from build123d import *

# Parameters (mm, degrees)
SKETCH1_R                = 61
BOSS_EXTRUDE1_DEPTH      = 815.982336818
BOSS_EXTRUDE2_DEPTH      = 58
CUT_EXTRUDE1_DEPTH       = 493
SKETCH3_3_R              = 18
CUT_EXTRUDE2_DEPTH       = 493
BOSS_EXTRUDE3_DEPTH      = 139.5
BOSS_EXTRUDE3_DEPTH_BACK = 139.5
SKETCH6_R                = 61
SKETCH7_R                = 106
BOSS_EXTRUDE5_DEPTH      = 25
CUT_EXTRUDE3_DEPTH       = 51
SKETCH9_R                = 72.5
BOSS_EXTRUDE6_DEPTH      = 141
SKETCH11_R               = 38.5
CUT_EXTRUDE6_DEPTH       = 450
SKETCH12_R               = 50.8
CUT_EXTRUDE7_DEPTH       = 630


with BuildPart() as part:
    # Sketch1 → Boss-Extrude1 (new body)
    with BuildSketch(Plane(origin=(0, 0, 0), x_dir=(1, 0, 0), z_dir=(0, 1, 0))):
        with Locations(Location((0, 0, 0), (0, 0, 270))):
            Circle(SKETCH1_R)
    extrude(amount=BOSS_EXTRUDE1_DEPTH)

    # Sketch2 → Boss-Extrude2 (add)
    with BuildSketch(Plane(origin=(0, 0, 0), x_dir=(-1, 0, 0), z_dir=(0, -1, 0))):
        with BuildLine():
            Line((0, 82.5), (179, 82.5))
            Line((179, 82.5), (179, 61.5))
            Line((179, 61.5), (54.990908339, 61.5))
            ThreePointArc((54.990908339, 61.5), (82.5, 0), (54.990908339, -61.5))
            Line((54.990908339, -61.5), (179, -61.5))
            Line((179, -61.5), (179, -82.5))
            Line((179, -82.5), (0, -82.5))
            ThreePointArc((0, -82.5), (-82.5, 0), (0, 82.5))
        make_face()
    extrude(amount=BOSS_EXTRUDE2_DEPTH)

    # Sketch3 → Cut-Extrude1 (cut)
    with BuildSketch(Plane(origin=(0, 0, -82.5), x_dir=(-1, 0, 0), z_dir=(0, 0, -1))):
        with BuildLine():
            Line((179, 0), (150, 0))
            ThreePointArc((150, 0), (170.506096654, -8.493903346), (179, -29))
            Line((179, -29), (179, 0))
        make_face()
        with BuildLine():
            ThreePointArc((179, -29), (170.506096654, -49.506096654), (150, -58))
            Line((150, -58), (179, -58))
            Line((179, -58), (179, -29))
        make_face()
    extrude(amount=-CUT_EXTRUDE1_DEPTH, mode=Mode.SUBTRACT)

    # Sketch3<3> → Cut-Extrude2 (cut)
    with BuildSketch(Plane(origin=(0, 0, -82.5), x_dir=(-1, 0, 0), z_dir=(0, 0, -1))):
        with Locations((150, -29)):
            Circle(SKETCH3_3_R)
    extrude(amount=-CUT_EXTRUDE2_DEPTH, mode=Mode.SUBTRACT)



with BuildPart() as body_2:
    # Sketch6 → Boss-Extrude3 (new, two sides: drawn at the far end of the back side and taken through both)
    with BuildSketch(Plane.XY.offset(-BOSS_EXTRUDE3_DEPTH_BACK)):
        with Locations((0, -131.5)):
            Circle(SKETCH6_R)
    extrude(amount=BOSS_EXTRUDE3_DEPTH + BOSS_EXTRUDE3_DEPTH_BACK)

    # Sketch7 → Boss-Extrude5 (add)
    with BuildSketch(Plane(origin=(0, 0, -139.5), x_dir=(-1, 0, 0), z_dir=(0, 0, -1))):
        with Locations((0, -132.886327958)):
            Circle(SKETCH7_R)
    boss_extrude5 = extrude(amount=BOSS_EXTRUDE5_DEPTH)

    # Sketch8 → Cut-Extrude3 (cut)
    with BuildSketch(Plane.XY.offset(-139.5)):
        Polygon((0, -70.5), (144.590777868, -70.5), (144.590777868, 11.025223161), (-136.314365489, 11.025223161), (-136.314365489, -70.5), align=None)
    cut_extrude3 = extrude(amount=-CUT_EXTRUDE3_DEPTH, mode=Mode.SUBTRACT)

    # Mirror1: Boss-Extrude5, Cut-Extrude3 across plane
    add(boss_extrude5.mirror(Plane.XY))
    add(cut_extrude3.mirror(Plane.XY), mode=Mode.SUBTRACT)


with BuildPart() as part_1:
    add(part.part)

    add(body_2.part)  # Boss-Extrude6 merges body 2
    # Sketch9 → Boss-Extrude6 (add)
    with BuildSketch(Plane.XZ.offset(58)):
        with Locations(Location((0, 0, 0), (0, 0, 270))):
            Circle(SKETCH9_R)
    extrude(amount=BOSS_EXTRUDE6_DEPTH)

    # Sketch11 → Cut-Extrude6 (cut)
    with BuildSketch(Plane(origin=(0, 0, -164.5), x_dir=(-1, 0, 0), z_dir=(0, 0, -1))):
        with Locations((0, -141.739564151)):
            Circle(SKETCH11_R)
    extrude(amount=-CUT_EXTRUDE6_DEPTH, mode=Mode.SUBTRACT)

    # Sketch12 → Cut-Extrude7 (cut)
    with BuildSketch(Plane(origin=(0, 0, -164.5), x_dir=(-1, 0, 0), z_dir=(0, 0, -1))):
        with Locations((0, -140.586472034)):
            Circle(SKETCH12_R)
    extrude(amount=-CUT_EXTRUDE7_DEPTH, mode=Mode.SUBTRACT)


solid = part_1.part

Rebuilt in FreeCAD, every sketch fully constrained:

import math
import FreeCAD as App
import Part
import Sketcher
from FreeCAD import Vector

doc = App.newDocument("Part")
params = doc.addObject("Spreadsheet::Sheet", "Params")
for row, (alias, value) in enumerate([
    ("sketch1_diameter", "122 mm"),
    ("pad1_length", "815.982337 mm"),
    ("sketch2_radius", "82.5 mm"),
    ("sketch2_width", "179 mm"),
    ("sketch2_height", "21 mm"),
    ("pad2_length", "58 mm"),
    ("sketch3_radius", "29 mm"),
    ("pocket1_length", "493 mm"),
    ("sketch4_diameter", "36 mm"),
    ("pocket2_length", "493 mm"),
    ("sketch5_diameter", "122 mm"),
    ("pad3_length", "139.5 mm"),
    ("pad3_length2", "139.5 mm"),
    ("sketch6_diameter", "212 mm"),
    ("pad4_length", "25 mm"),
    ("pocket3_length", "51 mm"),
    ("sketch8_diameter", "145 mm"),
    ("pad5_length", "141 mm"),
    ("sketch9_diameter", "77 mm"),
    ("pocket4_length", "450 mm"),
    ("sketch10_diameter", "101.6 mm"),
    ("pocket5_length", "630 mm"),
], start=1):
    params.set(f"A{row}", alias)
    params.set(f"B{row}", "=" + value)
    params.setAlias(f"B{row}", alias)

body = doc.addObject("PartDesign::Body", "Body")

sketch1 = body.newObject("Sketcher::SketchObject", "Sketch")
sketch1.AttachmentSupport = (doc.getObject("XZ_Plane"), [""])
sketch1.MapMode = "FlatFace"
sketch1.addGeometry(Part.Circle(Vector(0, 0, 0), Vector(0, 0, 1), 61), False)
sketch1.addConstraint([
    Sketcher.Constraint("Coincident", 0, 3, -1, 1),
    Sketcher.Constraint("Diameter", 0, 122.0),
])
sketch1.setExpression("Constraints[1]", "Params.sketch1_diameter")
pad1 = body.newObject("PartDesign::Pad", "Pad")
pad1.Profile = sketch1
pad1.setExpression("Length", "Params.pad1_length")
pad1.Reversed = True

sketch2 = body.newObject("Sketcher::SketchObject", "Sketch001")
sketch2.AttachmentSupport = (doc.getObject("XZ_Plane"), [""])
sketch2.MapMode = "FlatFace"
sketch2.addGeometry([
    Part.LineSegment(Vector(-179, -82, 0), Vector(0, -82, 0)),
    Part.ArcOfCircle(Part.Circle(Vector(0, 0, 0), Vector(0, 0, 1), 82), math.radians(-90), math.radians(90)),
    Part.LineSegment(Vector(0, 82, 0), Vector(-179, 82, 0)),
    Part.LineSegment(Vector(-179, 82, 0), Vector(-179, 62, 0)),
    Part.LineSegment(Vector(-179, 62, 0), Vector(-55, 62, 0)),
    Part.ArcOfCircle(Part.Circle(Vector(0, 0, 0), Vector(0, 0, 1), 82), math.radians(132), math.radians(228)),
    Part.LineSegment(Vector(-55, -62, 0), Vector(-179, -62, 0)),
    Part.LineSegment(Vector(-179, -62, 0), Vector(-179, -82, 0)),
], False)
sketch2.addConstraint([
    Sketcher.Constraint("Tangent", 0, 2, 1, 1),
    Sketcher.Constraint("Tangent", 1, 2, 2, 1),
    Sketcher.Constraint("Coincident", 2, 2, 3, 1),
    Sketcher.Constraint("Coincident", 3, 2, 4, 1),
    Sketcher.Constraint("Coincident", 4, 2, 5, 1),
    Sketcher.Constraint("Coincident", 5, 2, 6, 1),
    Sketcher.Constraint("Coincident", 6, 2, 7, 1),
    Sketcher.Constraint("Coincident", 7, 2, 0, 1),
    Sketcher.Constraint("Horizontal", 0),
    Sketcher.Constraint("Horizontal", 2),
    Sketcher.Constraint("Vertical", 3),
    Sketcher.Constraint("Horizontal", 4),
    Sketcher.Constraint("Horizontal", 6),
    Sketcher.Constraint("Vertical", 7),
    Sketcher.Constraint("Coincident", 1, 3, -1, 1),
    Sketcher.Constraint("Coincident", 5, 3, -1, 1),
    Sketcher.Constraint("Equal", 1, 5),
    Sketcher.Constraint("Symmetric", 3, 2, 6, 2, -1),
    Sketcher.Constraint("Radius", 1, 82.5),
    Sketcher.Constraint("DistanceX", 0, 1, 0, 2, 179.0),
    Sketcher.Constraint("DistanceY", 3, 2, 3, 1, 21.0),
])
sketch2.setExpression("Constraints[18]", "Params.sketch2_radius")
sketch2.setExpression("Constraints[19]", "Params.sketch2_width")
sketch2.setExpression("Constraints[20]", "Params.sketch2_height")
pad2 = body.newObject("PartDesign::Pad", "Pad001")
pad2.Profile = sketch2
pad2.setExpression("Length", "Params.pad2_length")

sketch3 = body.newObject("Sketcher::SketchObject", "Sketch002")
sketch3.AttachmentSupport = (doc.getObject("XY_Plane"), [""])
sketch3.MapMode = "FlatFace"
sketch3.AttachmentOffset = App.Placement(Vector(0, 0, -82.5), App.Rotation())
sketch3.addGeometry([
    Part.LineSegment(Vector(-179, 0, 0), Vector(-150, 0, 0)),
    Part.ArcOfCircle(Part.Circle(Vector(-150, -29, 0), Vector(0, 0, 1), 29), math.radians(90), math.radians(180)),
    Part.LineSegment(Vector(-179, -29, 0), Vector(-179, 0, 0)),
    Part.ArcOfCircle(Part.Circle(Vector(-150, -29, 0), Vector(0, 0, 1), 29), math.radians(-180), math.radians(-90)),
    Part.LineSegment(Vector(-150, -58, 0), Vector(-179, -58, 0)),
    Part.LineSegment(Vector(-179, -58, 0), Vector(-179, -29, 0)),
], False)
sketch3.addConstraint([
    Sketcher.Constraint("Tangent", 0, 2, 1, 1),
    Sketcher.Constraint("Tangent", 1, 2, 2, 1),
    Sketcher.Constraint("Coincident", 2, 2, 0, 1),
    Sketcher.Constraint("Tangent", 3, 2, 4, 1),
    Sketcher.Constraint("Coincident", 4, 2, 5, 1),
    Sketcher.Constraint("Tangent", 5, 2, 3, 1),
    Sketcher.Constraint("Horizontal", 0),
    Sketcher.Constraint("Vertical", 2),
    Sketcher.Constraint("Horizontal", 4),
    Sketcher.Constraint("Vertical", 5),
    Sketcher.Constraint("Coincident", 3, 3, 1, 3),
    Sketcher.Constraint("Equal", 1, 3),
    Sketcher.Constraint("PointOnObject", 0, 2, -1),
    Sketcher.Constraint("Radius", 1, 29.0),
    Sketcher.Constraint("DistanceX", 1, 3, -1, 1, 150.0),
])
sketch3.setExpression("Constraints[13]", "Params.sketch3_radius")
pocket1 = body.newObject("PartDesign::Pocket", "Pocket")
pocket1.Profile = sketch3
pocket1.setExpression("Length", "Params.pocket1_length")
pocket1.Reversed = True

sketch4 = body.newObject("Sketcher::SketchObject", "Sketch003")
sketch4.AttachmentSupport = (doc.getObject("XY_Plane"), [""])
sketch4.MapMode = "FlatFace"
sketch4.AttachmentOffset = App.Placement(Vector(0, 0, -82.5), App.Rotation())
sketch4.addGeometry(Part.Circle(Vector(-150, -29, 0), Vector(0, 0, 1), 18), False)
sketch4.addConstraint([
    Sketcher.Constraint("Diameter", 0, 36.0),
    Sketcher.Constraint("DistanceX", 0, 3, -1, 1, 150.0),
    Sketcher.Constraint("DistanceY", 0, 3, -1, 1, 29.0),
])
sketch4.setExpression("Constraints[0]", "Params.sketch4_diameter")
pocket2 = body.newObject("PartDesign::Pocket", "Pocket001")
pocket2.Profile = sketch4
pocket2.setExpression("Length", "Params.pocket2_length")
pocket2.Reversed = True
body2 = doc.addObject("PartDesign::Body", "Body001")

sketch5 = body2.newObject("Sketcher::SketchObject", "Sketch004")
sketch5.AttachmentSupport = (doc.getObject("XY_Plane001"), [""])
sketch5.MapMode = "FlatFace"
sketch5.addGeometry(Part.Circle(Vector(0, -132, 0), Vector(0, 0, 1), 61), False)
sketch5.addConstraint([
    Sketcher.Constraint("PointOnObject", 0, 3, -2),
    Sketcher.Constraint("Diameter", 0, 122.0),
    Sketcher.Constraint("DistanceY", 0, 3, -1, 1, 131.5),
])
sketch5.setExpression("Constraints[1]", "Params.sketch5_diameter")
pad3 = body2.newObject("PartDesign::Pad", "Pad002")
pad3.Profile = sketch5
pad3.Type = "TwoLengths"
pad3.setExpression("Length", "Params.pad3_length")
pad3.setExpression("Length2", "Params.pad3_length2")

sketch6 = body2.newObject("Sketcher::SketchObject", "Sketch005")
sketch6.AttachmentSupport = (doc.getObject("XY_Plane001"), [""])
sketch6.MapMode = "FlatFace"
sketch6.AttachmentOffset = App.Placement(Vector(0, 0, -139.5), App.Rotation())
sketch6.addGeometry(Part.Circle(Vector(0, -133, 0), Vector(0, 0, 1), 106), False)
sketch6.addConstraint([
    Sketcher.Constraint("PointOnObject", 0, 3, -2),
    Sketcher.Constraint("Diameter", 0, 212.0),
    Sketcher.Constraint("DistanceY", 0, 3, -1, 1, 132.886328),
])
sketch6.setExpression("Constraints[1]", "Params.sketch6_diameter")
pad4 = body2.newObject("PartDesign::Pad", "Pad003")
pad4.Profile = sketch6
pad4.setExpression("Length", "Params.pad4_length")
pad4.Reversed = True

sketch7 = body2.newObject("Sketcher::SketchObject", "Sketch006")
sketch7.AttachmentSupport = (doc.getObject("XY_Plane001"), [""])
sketch7.MapMode = "FlatFace"
sketch7.AttachmentOffset = App.Placement(Vector(0, 0, -139.5), App.Rotation())
sketch7.addGeometry([
    Part.LineSegment(Vector(145, -70, 0), Vector(145, 11, 0)),
    Part.LineSegment(Vector(145, 11, 0), Vector(-136, 11, 0)),
    Part.LineSegment(Vector(-136, 11, 0), Vector(-136, -70, 0)),
    Part.LineSegment(Vector(-136, -70, 0), Vector(145, -70, 0)),
], False)
sketch7.addConstraint([
    Sketcher.Constraint("Coincident", 0, 2, 1, 1),
    Sketcher.Constraint("Coincident", 1, 2, 2, 1),
    Sketcher.Constraint("Coincident", 2, 2, 3, 1),
    Sketcher.Constraint("Coincident", 3, 2, 0, 1),
    Sketcher.Constraint("Vertical", 0),
    Sketcher.Constraint("Horizontal", 1),
    Sketcher.Constraint("Vertical", 2),
    Sketcher.Constraint("Horizontal", 3),
    Sketcher.Constraint("DistanceY", 2, 2, -1, 1, 70.5),
    Sketcher.Constraint("DistanceX", 1, 2, 1, 1, 280.905143),
    Sketcher.Constraint("DistanceY", 0, 1, 0, 2, 81.525223),
    Sketcher.Constraint("DistanceX", -1, 1, 0, 2, 144.590778),
])
pocket3 = body2.newObject("PartDesign::Pocket", "Pocket002")
pocket3.Profile = sketch7
pocket3.setExpression("Length", "Params.pocket3_length")
doc.recompute()

mirrored = body2.newObject("PartDesign::Mirrored", "Mirrored")
mirrored.Originals = [pad4, pocket3]
mirrored.MirrorPlane = (doc.getObject("XY_Plane001"), [""])
body2.Tip = mirrored
body.AllowCompound = True
doc.recompute()

boolean = body.newObject("PartDesign::Boolean", "Boolean")
boolean.Type = "Fuse"
boolean.addObjects([body2])

sketch8 = body.newObject("Sketcher::SketchObject", "Sketch007")
sketch8.AttachmentSupport = (doc.getObject("XZ_Plane"), [""])
sketch8.MapMode = "FlatFace"
sketch8.AttachmentOffset = App.Placement(Vector(0, 0, 58), App.Rotation())
sketch8.addGeometry(Part.Circle(Vector(0, 0, 0), Vector(0, 0, 1), 72), False)
sketch8.addConstraint([
    Sketcher.Constraint("Coincident", 0, 3, -1, 1),
    Sketcher.Constraint("Diameter", 0, 145.0),
])
sketch8.setExpression("Constraints[1]", "Params.sketch8_diameter")
pad5 = body.newObject("PartDesign::Pad", "Pad004")
pad5.Profile = sketch8
pad5.setExpression("Length", "Params.pad5_length")

sketch9 = body.newObject("Sketcher::SketchObject", "Sketch008")
sketch9.AttachmentSupport = (doc.getObject("XY_Plane"), [""])
sketch9.MapMode = "FlatFace"
sketch9.AttachmentOffset = App.Placement(Vector(0, 0, -164.5), App.Rotation())
sketch9.addGeometry(Part.Circle(Vector(0, -142, 0), Vector(0, 0, 1), 38), False)
sketch9.addConstraint([
    Sketcher.Constraint("PointOnObject", 0, 3, -2),
    Sketcher.Constraint("Diameter", 0, 77.0),
    Sketcher.Constraint("DistanceY", 0, 3, -1, 1, 141.739564),
])
sketch9.setExpression("Constraints[1]", "Params.sketch9_diameter")
pocket4 = body.newObject("PartDesign::Pocket", "Pocket003")
pocket4.Profile = sketch9
pocket4.setExpression("Length", "Params.pocket4_length")
pocket4.Reversed = True

sketch10 = body.newObject("Sketcher::SketchObject", "Sketch009")
sketch10.AttachmentSupport = (doc.getObject("XY_Plane"), [""])
sketch10.MapMode = "FlatFace"
sketch10.AttachmentOffset = App.Placement(Vector(0, 0, -164.5), App.Rotation())
sketch10.addGeometry(Part.Circle(Vector(0, -141, 0), Vector(0, 0, 1), 51), False)
sketch10.addConstraint([
    Sketcher.Constraint("PointOnObject", 0, 3, -2),
    Sketcher.Constraint("Diameter", 0, 101.6),
    Sketcher.Constraint("DistanceY", 0, 3, -1, 1, 140.586472),
])
sketch10.setExpression("Constraints[1]", "Params.sketch10_diameter")
pocket5 = body.newObject("PartDesign::Pocket", "Pocket004")
pocket5.Profile = sketch10
pocket5.setExpression("Length", "Params.pocket5_length")
pocket5.Reversed = True

doc.recompute()
